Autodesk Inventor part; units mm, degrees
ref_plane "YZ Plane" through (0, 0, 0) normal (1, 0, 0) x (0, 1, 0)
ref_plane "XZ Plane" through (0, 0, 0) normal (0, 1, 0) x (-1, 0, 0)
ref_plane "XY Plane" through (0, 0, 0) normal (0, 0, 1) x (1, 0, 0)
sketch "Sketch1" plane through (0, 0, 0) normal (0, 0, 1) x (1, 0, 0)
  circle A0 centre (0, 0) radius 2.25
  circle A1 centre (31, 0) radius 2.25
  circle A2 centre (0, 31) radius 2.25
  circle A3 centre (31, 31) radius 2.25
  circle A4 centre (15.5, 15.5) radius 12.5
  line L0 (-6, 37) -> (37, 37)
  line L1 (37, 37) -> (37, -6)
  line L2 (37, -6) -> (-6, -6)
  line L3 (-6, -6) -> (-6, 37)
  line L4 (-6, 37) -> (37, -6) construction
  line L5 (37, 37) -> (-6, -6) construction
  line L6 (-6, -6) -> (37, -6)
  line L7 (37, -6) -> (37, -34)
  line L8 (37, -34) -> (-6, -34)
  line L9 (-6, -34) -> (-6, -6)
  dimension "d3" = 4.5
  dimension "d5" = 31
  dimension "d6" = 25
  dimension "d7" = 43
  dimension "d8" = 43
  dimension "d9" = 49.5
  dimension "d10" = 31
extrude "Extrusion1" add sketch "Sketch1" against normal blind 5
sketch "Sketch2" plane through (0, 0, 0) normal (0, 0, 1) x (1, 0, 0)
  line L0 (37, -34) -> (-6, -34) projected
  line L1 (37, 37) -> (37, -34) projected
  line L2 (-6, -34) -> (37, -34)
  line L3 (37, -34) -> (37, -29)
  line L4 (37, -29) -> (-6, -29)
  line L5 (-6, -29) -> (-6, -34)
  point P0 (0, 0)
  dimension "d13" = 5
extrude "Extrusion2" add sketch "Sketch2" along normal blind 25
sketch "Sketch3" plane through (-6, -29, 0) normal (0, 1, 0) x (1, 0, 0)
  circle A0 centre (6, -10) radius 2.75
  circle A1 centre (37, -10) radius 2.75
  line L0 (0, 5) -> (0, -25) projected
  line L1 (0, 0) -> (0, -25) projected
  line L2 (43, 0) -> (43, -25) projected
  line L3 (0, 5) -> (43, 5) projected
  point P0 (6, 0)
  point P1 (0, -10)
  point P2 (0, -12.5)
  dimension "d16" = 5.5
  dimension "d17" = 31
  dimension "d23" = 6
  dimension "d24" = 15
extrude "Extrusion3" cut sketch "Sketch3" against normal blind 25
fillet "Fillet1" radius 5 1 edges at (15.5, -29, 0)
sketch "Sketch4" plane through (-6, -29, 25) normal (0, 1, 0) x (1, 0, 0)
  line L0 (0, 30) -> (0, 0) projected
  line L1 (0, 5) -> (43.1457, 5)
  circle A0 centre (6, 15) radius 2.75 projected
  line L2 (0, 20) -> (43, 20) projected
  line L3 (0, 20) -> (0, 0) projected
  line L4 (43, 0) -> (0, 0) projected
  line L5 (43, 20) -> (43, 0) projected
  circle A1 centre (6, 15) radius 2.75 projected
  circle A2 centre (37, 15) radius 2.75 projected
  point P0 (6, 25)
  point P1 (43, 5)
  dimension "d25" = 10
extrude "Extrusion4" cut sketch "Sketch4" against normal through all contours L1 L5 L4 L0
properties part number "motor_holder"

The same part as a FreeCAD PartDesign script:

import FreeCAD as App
import Part
import Sketcher

V = App.Vector


def edges_at(feature, points):
    """Names of the edges that pass closest to the given points."""
    edges = feature.Shape.Edges
    near = lambda p: min(range(len(edges)), key=lambda i: edges[i].distToShape(Part.Vertex(*p))[0])
    return sorted({f"Edge{near(p) + 1}" for p in points})


def add_polygon(sketch, points):
    """Adds a closed chain of lines whose ends are joined by coincident constraints."""
    first, n = sketch.GeometryCount, len(points)
    for a, b in zip(points, points[1:] + points[:1]):
        sketch.addGeometry(Part.LineSegment(App.Vector(*a, 0), App.Vector(*b, 0)), False)
    for i in range(n):
        sketch.addConstraint(Sketcher.Constraint("Coincident", first + i, 2, first + (i + 1) % n, 1))

doc = App.newDocument("Part")
params = doc.addObject("Spreadsheet::Sheet", "Params")
for row, (alias, value) in enumerate([
    ("sketch1_diameter", "25 mm"),
    ("sketch1_diameter2", "4.5 mm"),
    ("sketch1_width", "43 mm"),
    ("sketch1_height", "71 mm"),
    ("pad1_length", "5 mm"),
    ("sketch2_height", "5 mm"),
    ("sketch2_width", "43 mm"),
    ("pad2_length", "25 mm"),
    ("sketch3_diameter", "5.5 mm"),
    ("pocket1_length", "25 mm"),
    ("fillet_radius", "5 mm"),
    ("sketch4_width", "43 mm"),
    ("sketch4_height", "5 mm"),
], start=1):
    params.set(f"A{row}", alias)
    params.set(f"B{row}", "=" + value)
    params.setAlias(f"B{row}", alias)

body = doc.addObject("PartDesign::Body", "Body")

sketch1 = doc.addObject("Sketcher::SketchObject", "Sketch")
body.addObject(sketch1)
sketch1.AttachmentSupport = (doc.XY_Plane, [""])
sketch1.MapMode = "FlatFace"
add_polygon(sketch1, [(37, 37), (-6, 37), (-6, -34), (37, -34)])
sketch1.addGeometry(Part.Circle(V(0, 0, 0), V(0, 0, 1), 2.25), False)
sketch1.addGeometry(Part.Circle(V(31, 0, 0), V(0, 0, 1), 2.25), False)
sketch1.addGeometry(Part.Circle(V(0, 31, 0), V(0, 0, 1), 2.25), False)
sketch1.addGeometry(Part.Circle(V(15.5, 15.5, 0), V(0, 0, 1), 12.5), False)
sketch1.addGeometry(Part.Circle(V(31, 31, 0), V(0, 0, 1), 2.25), False)
sketch1.addConstraint(Sketcher.Constraint("Horizontal", 0))
sketch1.addConstraint(Sketcher.Constraint("Vertical", 1))
sketch1.addConstraint(Sketcher.Constraint("Horizontal", 2))
sketch1.addConstraint(Sketcher.Constraint("Vertical", 3))
sketch1.addConstraint(Sketcher.Constraint("Coincident", 4, 3, -1, 1))
sketch1.addConstraint(Sketcher.Constraint("Equal", 4, 5))
sketch1.addConstraint(Sketcher.Constraint("Equal", 5, 6))
sketch1.addConstraint(Sketcher.Constraint("Equal", 6, 8))
sketch1.addConstraint(Sketcher.Constraint("PointOnObject", 5, 3, -1))
sketch1.addConstraint(Sketcher.Constraint("PointOnObject", 6, 3, -2))
sketch1.addConstraint(Sketcher.Constraint("Horizontal", 6, 3, 8, 3))
sketch1.addConstraint(Sketcher.Constraint("Vertical", 5, 3, 8, 3))
sketch1.addConstraint(Sketcher.Constraint("Diameter", 7, 25.0))
sketch1.addConstraint(Sketcher.Constraint("Diameter", 4, 4.5))
sketch1.addConstraint(Sketcher.Constraint("DistanceX", 0, 2, 0, 1, 43.0))
sketch1.addConstraint(Sketcher.Constraint("DistanceX", -1, 1, 5, 3, 31.0))
sketch1.addConstraint(Sketcher.Constraint("DistanceY", -1, 1, 6, 3, 31.0))
sketch1.addConstraint(Sketcher.Constraint("DistanceY", 1, 2, 7, 3, 49.5))
sketch1.addConstraint(Sketcher.Constraint("DistanceY", 1, 2, 1, 1, 71.0))
sketch1.addConstraint(Sketcher.Constraint("DistanceX", 0, 2, -1, 1, 6.0))
sketch1.addConstraint(Sketcher.Constraint("DistanceY", -1, 1, 0, 2, 37.0))
sketch1.addConstraint(Sketcher.Constraint("DistanceX", -1, 1, 7, 3, 15.5))
sketch1.setExpression("Constraints[16]", "Params.sketch1_diameter")
sketch1.setExpression("Constraints[17]", "Params.sketch1_diameter2")
sketch1.setExpression("Constraints[18]", "Params.sketch1_width")
sketch1.setExpression("Constraints[22]", "Params.sketch1_height")
pad1 = doc.addObject("PartDesign::Pad", "Pad")
body.addObject(pad1)
pad1.Profile = sketch1
pad1.setExpression("Length", "Params.pad1_length")
pad1.Reversed = True

sketch2 = doc.addObject("Sketcher::SketchObject", "Sketch001")
body.addObject(sketch2)
sketch2.AttachmentSupport = (doc.XY_Plane, [""])
sketch2.MapMode = "FlatFace"
add_polygon(sketch2, [(-6, -34), (37, -34), (37, -29), (-6, -29)])
sketch2.addConstraint(Sketcher.Constraint("Horizontal", 0))
sketch2.addConstraint(Sketcher.Constraint("Vertical", 1))
sketch2.addConstraint(Sketcher.Constraint("Horizontal", 2))
sketch2.addConstraint(Sketcher.Constraint("Vertical", 3))
sketch2.addConstraint(Sketcher.Constraint("DistanceY", 1, 1, 1, 2, 5.0))
sketch2.addConstraint(Sketcher.Constraint("DistanceX", 0, 1, 0, 2, 43.0))
sketch2.addConstraint(Sketcher.Constraint("DistanceX", -1, 1, 0, 2, 37.0))
sketch2.addConstraint(Sketcher.Constraint("DistanceY", 0, 2, -1, 1, 34.0))
sketch2.setExpression("Constraints[8]", "Params.sketch2_height")
sketch2.setExpression("Constraints[9]", "Params.sketch2_width")
pad2 = doc.addObject("PartDesign::Pad", "Pad001")
body.addObject(pad2)
pad2.Profile = sketch2
pad2.setExpression("Length", "Params.pad2_length")

sketch3 = doc.addObject("Sketcher::SketchObject", "Sketch002")
body.addObject(sketch3)
sketch3.AttachmentSupport = (doc.XZ_Plane, [""])
sketch3.MapMode = "FlatFace"
sketch3.AttachmentOffset = App.Placement(V(0, 0, 29), App.Rotation())
sketch3.addGeometry(Part.Circle(V(0, 10, 0), V(0, 0, 1), 2.75), False)
sketch3.addGeometry(Part.Circle(V(31, 10, 0), V(0, 0, 1), 2.75), False)
sketch3.addConstraint(Sketcher.Constraint("Equal", 0, 1))
sketch3.addConstraint(Sketcher.Constraint("PointOnObject", 0, 3, -2))
sketch3.addConstraint(Sketcher.Constraint("Horizontal", 0, 3, 1, 3))
sketch3.addConstraint(Sketcher.Constraint("Diameter", 0, 5.5))
sketch3.addConstraint(Sketcher.Constraint("DistanceX", -1, 1, 1, 3, 31.0))
sketch3.addConstraint(Sketcher.Constraint("DistanceY", -1, 1, 0, 3, 10.0))
sketch3.setExpression("Constraints[3]", "Params.sketch3_diameter")
pocket1 = doc.addObject("PartDesign::Pocket", "Pocket")
body.addObject(pocket1)
pocket1.Profile = sketch3
pocket1.setExpression("Length", "Params.pocket1_length")
pocket1.Reversed = True
doc.recompute()

fillet = doc.addObject("PartDesign::Fillet", "Fillet")
body.addObject(fillet)
fillet.Base = (pocket1, edges_at(pocket1, [(15.5, -29, 0)]))
fillet.setExpression("Radius", "Params.fillet_radius")

sketch4 = doc.addObject("Sketcher::SketchObject", "Sketch003")
body.addObject(sketch4)
sketch4.AttachmentSupport = (doc.XZ_Plane, [""])
sketch4.MapMode = "FlatFace"
sketch4.AttachmentOffset = App.Placement(V(0, 0, 29), App.Rotation())
add_polygon(sketch4, [(37, 20), (-6, 20), (-6, 25), (37, 25)])
sketch4.addConstraint(Sketcher.Constraint("Horizontal", 0))
sketch4.addConstraint(Sketcher.Constraint("Vertical", 1))
sketch4.addConstraint(Sketcher.Constraint("Horizontal", 2))
sketch4.addConstraint(Sketcher.Constraint("Vertical", 3))
sketch4.addConstraint(Sketcher.Constraint("DistanceX", 0, 2, 0, 1, 43.0))
sketch4.addConstraint(Sketcher.Constraint("DistanceY", 1, 1, 1, 2, 5.0))
sketch4.addConstraint(Sketcher.Constraint("DistanceX", 0, 2, -1, 1, 6.0))
sketch4.addConstraint(Sketcher.Constraint("DistanceY", -1, 1, 0, 2, 20.0))
sketch4.setExpression("Constraints[8]", "Params.sketch4_width")
sketch4.setExpression("Constraints[9]", "Params.sketch4_height")
pocket2 = doc.addObject("PartDesign::Pocket", "Pocket001")
body.addObject(pocket2)
pocket2.Profile = sketch4
pocket2.Type = "ThroughAll"
pocket2.Reversed = True

doc.recompute()
